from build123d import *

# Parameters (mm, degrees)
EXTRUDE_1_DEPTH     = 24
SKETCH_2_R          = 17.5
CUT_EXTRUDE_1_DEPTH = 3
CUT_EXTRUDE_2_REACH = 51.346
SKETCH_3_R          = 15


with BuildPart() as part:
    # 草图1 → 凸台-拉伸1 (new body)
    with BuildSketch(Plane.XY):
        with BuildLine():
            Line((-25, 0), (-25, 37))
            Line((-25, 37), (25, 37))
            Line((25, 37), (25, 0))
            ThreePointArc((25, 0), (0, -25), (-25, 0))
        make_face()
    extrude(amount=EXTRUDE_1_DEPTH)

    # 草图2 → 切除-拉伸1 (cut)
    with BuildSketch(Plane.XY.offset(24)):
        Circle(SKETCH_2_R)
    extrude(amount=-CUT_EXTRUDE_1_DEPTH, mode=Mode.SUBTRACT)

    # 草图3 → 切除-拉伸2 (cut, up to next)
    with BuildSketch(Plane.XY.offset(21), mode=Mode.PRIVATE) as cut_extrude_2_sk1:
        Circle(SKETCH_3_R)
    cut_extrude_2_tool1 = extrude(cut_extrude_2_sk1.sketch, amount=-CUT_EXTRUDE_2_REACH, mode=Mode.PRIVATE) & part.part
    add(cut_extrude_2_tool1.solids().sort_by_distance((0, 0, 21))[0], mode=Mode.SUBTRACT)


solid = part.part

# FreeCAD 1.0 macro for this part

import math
import FreeCAD as App
import Part
import Sketcher

V = App.Vector

doc = App.newDocument("Part")
body = doc.addObject("PartDesign::Body", "Body")

sketch1 = body.newObject("Sketcher::SketchObject", "Sketch")
sketch1.AttachmentSupport = (doc.getObject("XY_Plane"), [""])
sketch1.MapMode = "FlatFace"
sketch1.addGeometry([
    Part.LineSegment(V(-25, 37, 0), V(-25, 0, 0)),
    Part.ArcOfCircle(Part.Circle(V(0, 0, 0), V(0, 0, 1), 25), math.radians(180), math.radians(360)),
    Part.LineSegment(V(25, 0, 0), V(25, 37, 0)),
    Part.LineSegment(V(25, 37, 0), V(-25, 37, 0)),
], False)
sketch1.addConstraint([
    Sketcher.Constraint("Tangent", 0, 2, 1, 1),
    Sketcher.Constraint("Tangent", 1, 2, 2, 1),
    Sketcher.Constraint("Coincident", 2, 2, 3, 1),
    Sketcher.Constraint("Coincident", 3, 2, 0, 1),
    Sketcher.Constraint("Vertical", 0),
    Sketcher.Constraint("Vertical", 2),
    Sketcher.Constraint("Horizontal", 3),
    Sketcher.Constraint("Coincident", 1, 3, -1, 1),
    Sketcher.Constraint("Radius", 1, 25.0),
    Sketcher.Constraint("DistanceY", 0, 2, 0, 1, 37.0),
])
pad1 = body.newObject("PartDesign::Pad", "Pad")
pad1.Profile = sketch1
pad1.Length = 24

sketch2 = body.newObject("Sketcher::SketchObject", "Sketch001")
sketch2.AttachmentSupport = (doc.getObject("XY_Plane"), [""])
sketch2.MapMode = "FlatFace"
sketch2.AttachmentOffset = App.Placement(V(0, 0, 24), App.Rotation())
sketch2.addGeometry(Part.Circle(V(0, 0, 0), V(0, 0, 1), 18), False)
sketch2.addConstraint([
    Sketcher.Constraint("Coincident", 0, 3, -1, 1),
    Sketcher.Constraint("Diameter", 0, 35.0),
])
pocket1 = body.newObject("PartDesign::Pocket", "Pocket")
pocket1.Profile = sketch2
pocket1.Length = 3

sketch3 = body.newObject("Sketcher::SketchObject", "Sketch002")
sketch3.AttachmentSupport = (doc.getObject("XY_Plane"), [""])
sketch3.MapMode = "FlatFace"
sketch3.AttachmentOffset = App.Placement(V(0, 0, 21), App.Rotation())
sketch3.addGeometry(Part.Circle(V(0, 0, 0), V(0, 0, 1), 15), False)
sketch3.addConstraint([
    Sketcher.Constraint("Coincident", 0, 3, -1, 1),
    Sketcher.Constraint("Diameter", 0, 30.0),
])
pocket2 = body.newObject("PartDesign::Pocket", "Pocket001")
pocket2.Profile = sketch3
pocket2.Type = "UpToFirst"

doc.recompute()
